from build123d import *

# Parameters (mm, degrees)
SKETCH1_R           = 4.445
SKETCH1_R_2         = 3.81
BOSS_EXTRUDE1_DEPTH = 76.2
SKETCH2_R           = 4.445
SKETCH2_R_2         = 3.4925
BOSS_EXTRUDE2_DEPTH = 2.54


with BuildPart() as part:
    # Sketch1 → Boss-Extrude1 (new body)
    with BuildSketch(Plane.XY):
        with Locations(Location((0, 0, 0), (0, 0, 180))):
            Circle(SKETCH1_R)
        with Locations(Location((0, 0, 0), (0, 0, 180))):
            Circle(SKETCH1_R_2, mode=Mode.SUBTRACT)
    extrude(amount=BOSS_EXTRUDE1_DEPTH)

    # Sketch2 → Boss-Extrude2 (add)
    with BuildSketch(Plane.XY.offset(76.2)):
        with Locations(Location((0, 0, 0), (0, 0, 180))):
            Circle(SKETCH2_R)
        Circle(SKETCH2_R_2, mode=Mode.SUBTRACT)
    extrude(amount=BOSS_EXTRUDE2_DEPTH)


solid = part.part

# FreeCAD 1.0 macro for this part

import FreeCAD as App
import Part
import Sketcher
from FreeCAD import Vector
Q = App.Units.Quantity

doc = App.newDocument("Part")
body = doc.addObject("PartDesign::Body", "Body")

# Sketch on XY plane
sketch1 = body.newObject("Sketcher::SketchObject", "Sketch")
sketch1.AttachmentSupport = (doc.getObject("XY_Plane"), [""])
sketch1.MapMode = "FlatFace"
sketch1.addGeometry([
    Part.Circle(Vector(0, 0, 0), Vector(0, 0, 1), 4.4),
    Part.Circle(Vector(0, 0, 0), Vector(0, 0, 1), 3.8),
], False)
sketch1.addConstraint([
    Sketcher.Constraint("Coincident", 0, 3, -1, 1),
    Sketcher.Constraint("Coincident", 1, 3, -1, 1),
    Sketcher.Constraint("Diameter", 1, Q("0.3 in")),
    Sketcher.Constraint("Diameter", 0, Q("0.35 in")),
])
pad1 = body.newObject("PartDesign::Pad", "Pad")
pad1.Profile = sketch1
pad1.Length = Q("3 in")

# Sketch on XY plane
sketch2 = body.newObject("Sketcher::SketchObject", "Sketch001")
sketch2.AttachmentSupport = (doc.getObject("XY_Plane"), [""])
sketch2.MapMode = "FlatFace"
sketch2.AttachmentOffset = App.Placement(Vector(0, 0, 3 * 25.4), App.Rotation())
sketch2.addGeometry([
    Part.Circle(Vector(0, 0, 0), Vector(0, 0, 1), 4.4),
    Part.Circle(Vector(0, 0, 0), Vector(0, 0, 1), 3.5),
], False)
sketch2.addConstraint([
    Sketcher.Constraint("Coincident", 0, 3, -1, 1),
    Sketcher.Constraint("Coincident", 1, 3, -1, 1),
    Sketcher.Constraint("Diameter", 0, Q("0.35 in")),
    Sketcher.Constraint("Diameter", 1, Q("0.275 in")),
])
pad2 = body.newObject("PartDesign::Pad", "Pad001")
pad2.Profile = sketch2
pad2.Length = Q("0.1 in")

doc.recompute()
